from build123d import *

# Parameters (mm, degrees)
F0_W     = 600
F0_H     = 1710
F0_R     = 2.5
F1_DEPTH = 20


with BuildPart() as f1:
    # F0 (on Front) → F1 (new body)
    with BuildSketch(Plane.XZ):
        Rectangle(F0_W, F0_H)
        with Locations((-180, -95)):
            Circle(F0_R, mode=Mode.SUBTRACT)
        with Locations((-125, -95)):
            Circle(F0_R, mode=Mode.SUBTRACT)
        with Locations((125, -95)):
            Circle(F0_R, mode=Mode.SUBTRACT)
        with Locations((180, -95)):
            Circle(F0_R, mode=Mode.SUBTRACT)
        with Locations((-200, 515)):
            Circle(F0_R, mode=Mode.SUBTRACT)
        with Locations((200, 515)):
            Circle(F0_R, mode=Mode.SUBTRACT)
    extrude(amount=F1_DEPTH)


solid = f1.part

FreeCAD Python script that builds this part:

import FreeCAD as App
import Part
import Sketcher
from FreeCAD import Vector


def add_polygon(sketch, points):
    """Adds a closed chain of lines whose ends are joined by coincident constraints."""
    first, n = sketch.GeometryCount, len(points)
    for a, b in zip(points, points[1:] + points[:1]):
        sketch.addGeometry(Part.LineSegment(App.Vector(*a, 0), App.Vector(*b, 0)), False)
    for i in range(n):
        sketch.addConstraint(Sketcher.Constraint("Coincident", first + i, 2, first + (i + 1) % n, 1))

doc = App.newDocument("Part")
body = doc.addObject("PartDesign::Body", "Body")

# Sketch on XZ plane
sketch1 = body.newObject("Sketcher::SketchObject", "Sketch")
sketch1.AttachmentSupport = (doc.getObject("XZ_Plane"), [""])
sketch1.MapMode = "FlatFace"
add_polygon(sketch1, [(-300, 855), (-300, -855), (300, -855), (300, 855)])  # lines 0-3
sketch1.addGeometry(Part.Circle(Vector(-180, -95, 0), Vector(0, 0, 1), 2.5), False)  # 4
sketch1.addGeometry(Part.Circle(Vector(-125, -95, 0), Vector(0, 0, 1), 2.5), False)  # 5
sketch1.addGeometry(Part.Circle(Vector(125, -95, 0), Vector(0, 0, 1), 2.5), False)  # 6
sketch1.addGeometry(Part.Circle(Vector(180, -95, 0), Vector(0, 0, 1), 2.5), False)  # 7
sketch1.addGeometry(Part.Circle(Vector(-200, 515, 0), Vector(0, 0, 1), 2.5), False)  # 8
sketch1.addGeometry(Part.Circle(Vector(200, 515, 0), Vector(0, 0, 1), 2.5), False)  # 9
sketch1.addConstraint(Sketcher.Constraint("Vertical", 0))
sketch1.addConstraint(Sketcher.Constraint("Horizontal", 1))
sketch1.addConstraint(Sketcher.Constraint("Vertical", 2))
sketch1.addConstraint(Sketcher.Constraint("Horizontal", 3))
sketch1.addConstraint(Sketcher.Constraint("Equal", 4, 5))
sketch1.addConstraint(Sketcher.Constraint("Equal", 5, 6))
sketch1.addConstraint(Sketcher.Constraint("Equal", 6, 7))
sketch1.addConstraint(Sketcher.Constraint("Equal", 7, 8))
sketch1.addConstraint(Sketcher.Constraint("Equal", 8, 9))
sketch1.addConstraint(Sketcher.Constraint("Symmetric", 0, 2, 2, 2, -1, 1))
sketch1.addConstraint(Sketcher.Constraint("Symmetric", 5, 3, 6, 3, -2))
sketch1.addConstraint(Sketcher.Constraint("Symmetric", 4, 3, 7, 3, -2))
sketch1.addConstraint(Sketcher.Constraint("Symmetric", 8, 3, 9, 3, -2))
sketch1.addConstraint(Sketcher.Constraint("Horizontal", 4, 3, 5, 3))
sketch1.addConstraint(Sketcher.Constraint("Diameter", 4, 5.0))
sketch1.addConstraint(Sketcher.Constraint("DistanceX", 1, 1, 1, 2, 600.0))
sketch1.addConstraint(Sketcher.Constraint("DistanceY", 0, 2, 0, 1, 1710.0))
sketch1.addConstraint(Sketcher.Constraint("DistanceX", 4, 3, -1, 1, 180.0))
sketch1.addConstraint(Sketcher.Constraint("DistanceY", 4, 3, -1, 1, 95.0))
sketch1.addConstraint(Sketcher.Constraint("DistanceX", 5, 3, -1, 1, 125.0))
sketch1.addConstraint(Sketcher.Constraint("DistanceX", 8, 3, -1, 1, 200.0))
sketch1.addConstraint(Sketcher.Constraint("DistanceY", -1, 1, 8, 3, 515.0))
pad1 = body.newObject("PartDesign::Pad", "Pad")
pad1.Profile = sketch1
pad1.Length = 20

doc.recompute()
